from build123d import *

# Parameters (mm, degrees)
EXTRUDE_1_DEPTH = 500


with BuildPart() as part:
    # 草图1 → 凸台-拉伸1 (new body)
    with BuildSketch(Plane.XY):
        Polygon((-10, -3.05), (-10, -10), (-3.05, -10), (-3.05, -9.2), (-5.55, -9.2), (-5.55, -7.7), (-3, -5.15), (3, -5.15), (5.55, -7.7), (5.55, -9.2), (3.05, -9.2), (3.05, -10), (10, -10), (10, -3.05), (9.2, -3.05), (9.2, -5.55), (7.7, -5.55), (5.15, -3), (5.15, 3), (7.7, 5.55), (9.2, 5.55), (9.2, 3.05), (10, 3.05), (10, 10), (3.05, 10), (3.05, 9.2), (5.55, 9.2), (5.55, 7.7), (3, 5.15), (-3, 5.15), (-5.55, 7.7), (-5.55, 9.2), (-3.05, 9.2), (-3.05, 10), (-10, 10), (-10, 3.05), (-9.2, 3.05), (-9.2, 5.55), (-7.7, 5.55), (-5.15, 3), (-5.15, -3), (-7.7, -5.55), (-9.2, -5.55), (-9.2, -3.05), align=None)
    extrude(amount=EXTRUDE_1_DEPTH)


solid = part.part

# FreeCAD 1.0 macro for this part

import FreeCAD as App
import Part
import Sketcher
Q = App.Units.Quantity


def add_polygon(sketch, points):
    """Adds a closed chain of lines whose ends are joined by coincident constraints."""
    first, n = sketch.GeometryCount, len(points)
    for a, b in zip(points, points[1:] + points[:1]):
        sketch.addGeometry(Part.LineSegment(App.Vector(*a, 0), App.Vector(*b, 0)), False)
    for i in range(n):
        sketch.addConstraint(Sketcher.Constraint("Coincident", first + i, 2, first + (i + 1) % n, 1))

doc = App.newDocument("Part")
body = doc.addObject("PartDesign::Body", "Body")

sketch1 = doc.addObject("Sketcher::SketchObject", "Sketch")
body.addObject(sketch1)
sketch1.AttachmentSupport = (doc.XY_Plane, [""])
sketch1.MapMode = "FlatFace"
add_polygon(sketch1, [(-10, -3.05), (-10, -10), (-3.05, -10), (-3.05, -9.2), (-5.55, -9.2), (-5.55, -7.7), (-3, -5.15), (3, -5.15), (5.55, -7.7), (5.55, -9.2), (3.05, -9.2), (3.05, -10), (10, -10), (10, -3.05), (9.2, -3.05), (9.2, -5.55), (7.7, -5.55), (5.15, -3), (5.15, 3), (7.7, 5.55), (9.2, 5.55), (9.2, 3.05), (10, 3.05), (10, 10), (3.05, 10), (3.05, 9.2), (5.55, 9.2), (5.55, 7.7), (3, 5.15), (-3, 5.15), (-5.55, 7.7), (-5.55, 9.2), (-3.05, 9.2), (-3.05, 10), (-10, 10), (-10, 3.05), (-9.2, 3.05), (-9.2, 5.55), (-7.7, 5.55), (-5.15, 3), (-5.15, -3), (-7.7, -5.55), (-9.2, -5.55), (-9.2, -3.05)])
sketch1.addConstraint([
    Sketcher.Constraint("Vertical", 0),
    Sketcher.Constraint("Horizontal", 1),
    Sketcher.Constraint("Vertical", 2),
    Sketcher.Constraint("Horizontal", 3),
    Sketcher.Constraint("Vertical", 4),
    Sketcher.Constraint("Horizontal", 6),
    Sketcher.Constraint("Vertical", 8),
    Sketcher.Constraint("Horizontal", 9),
    Sketcher.Constraint("Vertical", 10),
    Sketcher.Constraint("Horizontal", 11),
    Sketcher.Constraint("Vertical", 12),
    Sketcher.Constraint("Horizontal", 13),
    Sketcher.Constraint("Vertical", 14),
    Sketcher.Constraint("Horizontal", 15),
    Sketcher.Constraint("Vertical", 17),
    Sketcher.Constraint("Horizontal", 19),
    Sketcher.Constraint("Vertical", 20),
    Sketcher.Constraint("Horizontal", 21),
    Sketcher.Constraint("Vertical", 22),
    Sketcher.Constraint("Horizontal", 23),
    Sketcher.Constraint("Vertical", 24),
    Sketcher.Constraint("Horizontal", 25),
    Sketcher.Constraint("Vertical", 26),
    Sketcher.Constraint("Horizontal", 28),
    Sketcher.Constraint("Vertical", 30),
    Sketcher.Constraint("Horizontal", 31),
    Sketcher.Constraint("Vertical", 32),
    Sketcher.Constraint("Horizontal", 33),
    Sketcher.Constraint("Vertical", 34),
    Sketcher.Constraint("Horizontal", 35),
    Sketcher.Constraint("Vertical", 36),
    Sketcher.Constraint("Horizontal", 37),
    Sketcher.Constraint("Vertical", 39),
    Sketcher.Constraint("Horizontal", 41),
    Sketcher.Constraint("Vertical", 42),
    Sketcher.Constraint("Horizontal", 43),
    Sketcher.Constraint("Symmetric", 0, 2, 22, 2, -1, 1),
    Sketcher.Constraint("Symmetric", 2, 2, 24, 2, -1, 1),
    Sketcher.Constraint("Symmetric", 4, 2, 26, 2, -1, 1),
    Sketcher.Constraint("Symmetric", 5, 2, 27, 2, -1, 1),
    Sketcher.Constraint("Symmetric", 7, 2, 29, 2, -1, 1),
    Sketcher.Constraint("Symmetric", 9, 2, 31, 2, -1, 1),
    Sketcher.Constraint("Symmetric", 11, 2, 33, 2, -1, 1),
    Sketcher.Constraint("Symmetric", 13, 2, 35, 2, -1, 1),
    Sketcher.Constraint("Symmetric", 15, 2, 37, 2, -1, 1),
    Sketcher.Constraint("Symmetric", 16, 2, 38, 2, -1, 1),
    Sketcher.Constraint("Symmetric", 18, 2, 40, 2, -1, 1),
    Sketcher.Constraint("Symmetric", 20, 2, 42, 2, -1, 1),
    Sketcher.Constraint("Symmetric", 4, 2, 7, 2, -2),
    Sketcher.Constraint("Symmetric", 2, 2, 9, 2, -2),
    Sketcher.Constraint("Symmetric", 0, 2, 11, 2, -2),
    Sketcher.Constraint("Symmetric", 20, 2, 35, 2, -2),
    Sketcher.Constraint("Symmetric", 18, 2, 37, 2, -2),
    Sketcher.Constraint("Perpendicular", 5, 7),
    Sketcher.Constraint("Parallel", 7, 16),
    Sketcher.Constraint("Perpendicular", 16, 18),
    Sketcher.Constraint("Perpendicular", 27, 29),
    Sketcher.Constraint("Perpendicular", 38, 40),
    Sketcher.Constraint("Horizontal", 17, 2, 38, 2),
    Sketcher.Constraint("Equal", 33, 0),
    Sketcher.Constraint("Equal", 43, 2),
    Sketcher.Constraint("Equal", 41, 4),
    Sketcher.Constraint("Equal", 31, 14),
    Sketcher.Constraint("Equal", 28, 17),
    Sketcher.Constraint("Equal", 7, 16),
    Sketcher.Constraint("DistanceX", 6, 1, 6, 2, Q("6 mm")),
    Sketcher.Constraint("DistanceX", 3, 2, 3, 1, Q("2.5 mm")),
    Sketcher.Constraint("DistanceX", 13, 2, 13, 1, Q("0.8 mm")),
    Sketcher.Constraint("DistanceX", 15, 2, 15, 1, Q("1.5 mm")),
    Sketcher.Constraint("DistanceX", 0, 2, -1, 1, Q("10 mm")),
    Sketcher.Constraint("DistanceX", 1, 1, 1, 2, Q("6.95 mm")),
])
pad1 = doc.addObject("PartDesign::Pad", "Pad")
body.addObject(pad1)
pad1.Profile = sketch1
pad1.Length = 500

doc.recompute()
